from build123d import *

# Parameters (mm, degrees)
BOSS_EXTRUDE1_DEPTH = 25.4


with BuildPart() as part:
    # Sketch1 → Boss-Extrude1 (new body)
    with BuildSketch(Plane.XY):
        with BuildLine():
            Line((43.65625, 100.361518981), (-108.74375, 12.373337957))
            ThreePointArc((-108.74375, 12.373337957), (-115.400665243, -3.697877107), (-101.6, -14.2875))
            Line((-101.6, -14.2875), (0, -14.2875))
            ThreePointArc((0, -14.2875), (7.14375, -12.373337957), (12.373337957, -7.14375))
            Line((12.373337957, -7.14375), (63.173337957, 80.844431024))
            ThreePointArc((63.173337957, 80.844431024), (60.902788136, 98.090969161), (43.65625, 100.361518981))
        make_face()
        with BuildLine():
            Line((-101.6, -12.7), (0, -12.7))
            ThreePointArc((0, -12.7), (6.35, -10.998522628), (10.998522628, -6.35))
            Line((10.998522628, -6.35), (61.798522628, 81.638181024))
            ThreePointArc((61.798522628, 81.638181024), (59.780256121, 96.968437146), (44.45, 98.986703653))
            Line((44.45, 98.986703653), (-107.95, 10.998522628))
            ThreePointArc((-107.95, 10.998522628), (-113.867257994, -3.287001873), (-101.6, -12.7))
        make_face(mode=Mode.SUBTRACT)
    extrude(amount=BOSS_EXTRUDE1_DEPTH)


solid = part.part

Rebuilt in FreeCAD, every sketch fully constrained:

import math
import FreeCAD as App
import Part
import Sketcher
from FreeCAD import Vector
Q = App.Units.Quantity

doc = App.newDocument("Part")
body = doc.addObject("PartDesign::Body", "Body")

# Sketch on XY plane
sketch1 = doc.addObject("Sketcher::SketchObject", "Sketch")
body.addObject(sketch1)
sketch1.AttachmentSupport = (doc.XY_Plane, [""])
sketch1.MapMode = "FlatFace"
sketch1.addGeometry(Part.LineSegment(Vector(44, 100, 0), Vector(-109, 12, 0)), False)
sketch1.addGeometry(Part.ArcOfCircle(Part.Circle(Vector(-102, 0, 0), Vector(0, 0, 1), 14), math.radians(120), math.radians(270)), False)
sketch1.addGeometry(Part.LineSegment(Vector(-102, -14, 0), Vector(0, -14, 0)), False)
sketch1.addGeometry(Part.ArcOfCircle(Part.Circle(Vector(0, 0, 0), Vector(0, 0, 1), 14), math.radians(-90), math.radians(-30)), False)
sketch1.addGeometry(Part.LineSegment(Vector(12, -7, 0), Vector(63, 81, 0)), False)
sketch1.addGeometry(Part.ArcOfCircle(Part.Circle(Vector(51, 88, 0), Vector(0, 0, 1), 14), math.radians(-30), math.radians(120)), False)
sketch1.addGeometry(Part.LineSegment(Vector(0, -13, 0), Vector(-102, -13, 0)), False)
sketch1.addGeometry(Part.ArcOfCircle(Part.Circle(Vector(-102, 0, 0), Vector(0, 0, 1), 13), math.radians(120), math.radians(270)), False)
sketch1.addGeometry(Part.LineSegment(Vector(-108, 11, 0), Vector(44, 99, 0)), False)
sketch1.addGeometry(Part.ArcOfCircle(Part.Circle(Vector(51, 88, 0), Vector(0, 0, 1), 13), math.radians(-30), math.radians(120)), False)
sketch1.addGeometry(Part.LineSegment(Vector(62, 82, 0), Vector(11, -6, 0)), False)
sketch1.addGeometry(Part.ArcOfCircle(Part.Circle(Vector(0, 0, 0), Vector(0, 0, 1), 13), math.radians(-90), math.radians(-30)), False)
sketch1.addConstraint(Sketcher.Constraint("Tangent", 0, 2, 1, 1))
sketch1.addConstraint(Sketcher.Constraint("Tangent", 1, 2, 2, 1))
sketch1.addConstraint(Sketcher.Constraint("Tangent", 2, 2, 3, 1))
sketch1.addConstraint(Sketcher.Constraint("Tangent", 3, 2, 4, 1))
sketch1.addConstraint(Sketcher.Constraint("Tangent", 4, 2, 5, 1))
sketch1.addConstraint(Sketcher.Constraint("Tangent", 5, 2, 0, 1))
sketch1.addConstraint(Sketcher.Constraint("Tangent", 6, 2, 7, 2))
sketch1.addConstraint(Sketcher.Constraint("Tangent", 7, 1, 8, 1))
sketch1.addConstraint(Sketcher.Constraint("Tangent", 8, 2, 9, 2))
sketch1.addConstraint(Sketcher.Constraint("Tangent", 9, 1, 10, 1))
sketch1.addConstraint(Sketcher.Constraint("Tangent", 10, 2, 11, 2))
sketch1.addConstraint(Sketcher.Constraint("Tangent", 11, 1, 6, 1))
sketch1.addConstraint(Sketcher.Constraint("Horizontal", 2))
sketch1.addConstraint(Sketcher.Constraint("Horizontal", 6))
sketch1.addConstraint(Sketcher.Constraint("Coincident", 3, 3, -1, 1))
sketch1.addConstraint(Sketcher.Constraint("Coincident", 11, 3, -1, 1))
sketch1.addConstraint(Sketcher.Constraint("Coincident", 7, 3, 1, 3))
sketch1.addConstraint(Sketcher.Constraint("Coincident", 9, 3, 5, 3))
sketch1.addConstraint(Sketcher.Constraint("Equal", 1, 3))
sketch1.addConstraint(Sketcher.Constraint("Equal", 3, 5))
sketch1.addConstraint(Sketcher.Constraint("Equal", 7, 9))
sketch1.addConstraint(Sketcher.Constraint("Radius", 7, Q("0.5 in")))
sketch1.addConstraint(Sketcher.Constraint("DistanceX", 2, 1, 2, 2, Q("4 in")))
sketch1.addConstraint(Sketcher.Constraint("Distance", 4, Q("4 in")))
sketch1.addConstraint(Sketcher.Constraint("DistanceX", -1, 1, 5, 3, Q("2 in")))
sketch1.addConstraint(Sketcher.Constraint("Radius", 1, Q("0.5625 in")))
pad1 = doc.addObject("PartDesign::Pad", "Pad")
body.addObject(pad1)
pad1.Profile = sketch1
pad1.Length = Q("1 in")

doc.recompute()
